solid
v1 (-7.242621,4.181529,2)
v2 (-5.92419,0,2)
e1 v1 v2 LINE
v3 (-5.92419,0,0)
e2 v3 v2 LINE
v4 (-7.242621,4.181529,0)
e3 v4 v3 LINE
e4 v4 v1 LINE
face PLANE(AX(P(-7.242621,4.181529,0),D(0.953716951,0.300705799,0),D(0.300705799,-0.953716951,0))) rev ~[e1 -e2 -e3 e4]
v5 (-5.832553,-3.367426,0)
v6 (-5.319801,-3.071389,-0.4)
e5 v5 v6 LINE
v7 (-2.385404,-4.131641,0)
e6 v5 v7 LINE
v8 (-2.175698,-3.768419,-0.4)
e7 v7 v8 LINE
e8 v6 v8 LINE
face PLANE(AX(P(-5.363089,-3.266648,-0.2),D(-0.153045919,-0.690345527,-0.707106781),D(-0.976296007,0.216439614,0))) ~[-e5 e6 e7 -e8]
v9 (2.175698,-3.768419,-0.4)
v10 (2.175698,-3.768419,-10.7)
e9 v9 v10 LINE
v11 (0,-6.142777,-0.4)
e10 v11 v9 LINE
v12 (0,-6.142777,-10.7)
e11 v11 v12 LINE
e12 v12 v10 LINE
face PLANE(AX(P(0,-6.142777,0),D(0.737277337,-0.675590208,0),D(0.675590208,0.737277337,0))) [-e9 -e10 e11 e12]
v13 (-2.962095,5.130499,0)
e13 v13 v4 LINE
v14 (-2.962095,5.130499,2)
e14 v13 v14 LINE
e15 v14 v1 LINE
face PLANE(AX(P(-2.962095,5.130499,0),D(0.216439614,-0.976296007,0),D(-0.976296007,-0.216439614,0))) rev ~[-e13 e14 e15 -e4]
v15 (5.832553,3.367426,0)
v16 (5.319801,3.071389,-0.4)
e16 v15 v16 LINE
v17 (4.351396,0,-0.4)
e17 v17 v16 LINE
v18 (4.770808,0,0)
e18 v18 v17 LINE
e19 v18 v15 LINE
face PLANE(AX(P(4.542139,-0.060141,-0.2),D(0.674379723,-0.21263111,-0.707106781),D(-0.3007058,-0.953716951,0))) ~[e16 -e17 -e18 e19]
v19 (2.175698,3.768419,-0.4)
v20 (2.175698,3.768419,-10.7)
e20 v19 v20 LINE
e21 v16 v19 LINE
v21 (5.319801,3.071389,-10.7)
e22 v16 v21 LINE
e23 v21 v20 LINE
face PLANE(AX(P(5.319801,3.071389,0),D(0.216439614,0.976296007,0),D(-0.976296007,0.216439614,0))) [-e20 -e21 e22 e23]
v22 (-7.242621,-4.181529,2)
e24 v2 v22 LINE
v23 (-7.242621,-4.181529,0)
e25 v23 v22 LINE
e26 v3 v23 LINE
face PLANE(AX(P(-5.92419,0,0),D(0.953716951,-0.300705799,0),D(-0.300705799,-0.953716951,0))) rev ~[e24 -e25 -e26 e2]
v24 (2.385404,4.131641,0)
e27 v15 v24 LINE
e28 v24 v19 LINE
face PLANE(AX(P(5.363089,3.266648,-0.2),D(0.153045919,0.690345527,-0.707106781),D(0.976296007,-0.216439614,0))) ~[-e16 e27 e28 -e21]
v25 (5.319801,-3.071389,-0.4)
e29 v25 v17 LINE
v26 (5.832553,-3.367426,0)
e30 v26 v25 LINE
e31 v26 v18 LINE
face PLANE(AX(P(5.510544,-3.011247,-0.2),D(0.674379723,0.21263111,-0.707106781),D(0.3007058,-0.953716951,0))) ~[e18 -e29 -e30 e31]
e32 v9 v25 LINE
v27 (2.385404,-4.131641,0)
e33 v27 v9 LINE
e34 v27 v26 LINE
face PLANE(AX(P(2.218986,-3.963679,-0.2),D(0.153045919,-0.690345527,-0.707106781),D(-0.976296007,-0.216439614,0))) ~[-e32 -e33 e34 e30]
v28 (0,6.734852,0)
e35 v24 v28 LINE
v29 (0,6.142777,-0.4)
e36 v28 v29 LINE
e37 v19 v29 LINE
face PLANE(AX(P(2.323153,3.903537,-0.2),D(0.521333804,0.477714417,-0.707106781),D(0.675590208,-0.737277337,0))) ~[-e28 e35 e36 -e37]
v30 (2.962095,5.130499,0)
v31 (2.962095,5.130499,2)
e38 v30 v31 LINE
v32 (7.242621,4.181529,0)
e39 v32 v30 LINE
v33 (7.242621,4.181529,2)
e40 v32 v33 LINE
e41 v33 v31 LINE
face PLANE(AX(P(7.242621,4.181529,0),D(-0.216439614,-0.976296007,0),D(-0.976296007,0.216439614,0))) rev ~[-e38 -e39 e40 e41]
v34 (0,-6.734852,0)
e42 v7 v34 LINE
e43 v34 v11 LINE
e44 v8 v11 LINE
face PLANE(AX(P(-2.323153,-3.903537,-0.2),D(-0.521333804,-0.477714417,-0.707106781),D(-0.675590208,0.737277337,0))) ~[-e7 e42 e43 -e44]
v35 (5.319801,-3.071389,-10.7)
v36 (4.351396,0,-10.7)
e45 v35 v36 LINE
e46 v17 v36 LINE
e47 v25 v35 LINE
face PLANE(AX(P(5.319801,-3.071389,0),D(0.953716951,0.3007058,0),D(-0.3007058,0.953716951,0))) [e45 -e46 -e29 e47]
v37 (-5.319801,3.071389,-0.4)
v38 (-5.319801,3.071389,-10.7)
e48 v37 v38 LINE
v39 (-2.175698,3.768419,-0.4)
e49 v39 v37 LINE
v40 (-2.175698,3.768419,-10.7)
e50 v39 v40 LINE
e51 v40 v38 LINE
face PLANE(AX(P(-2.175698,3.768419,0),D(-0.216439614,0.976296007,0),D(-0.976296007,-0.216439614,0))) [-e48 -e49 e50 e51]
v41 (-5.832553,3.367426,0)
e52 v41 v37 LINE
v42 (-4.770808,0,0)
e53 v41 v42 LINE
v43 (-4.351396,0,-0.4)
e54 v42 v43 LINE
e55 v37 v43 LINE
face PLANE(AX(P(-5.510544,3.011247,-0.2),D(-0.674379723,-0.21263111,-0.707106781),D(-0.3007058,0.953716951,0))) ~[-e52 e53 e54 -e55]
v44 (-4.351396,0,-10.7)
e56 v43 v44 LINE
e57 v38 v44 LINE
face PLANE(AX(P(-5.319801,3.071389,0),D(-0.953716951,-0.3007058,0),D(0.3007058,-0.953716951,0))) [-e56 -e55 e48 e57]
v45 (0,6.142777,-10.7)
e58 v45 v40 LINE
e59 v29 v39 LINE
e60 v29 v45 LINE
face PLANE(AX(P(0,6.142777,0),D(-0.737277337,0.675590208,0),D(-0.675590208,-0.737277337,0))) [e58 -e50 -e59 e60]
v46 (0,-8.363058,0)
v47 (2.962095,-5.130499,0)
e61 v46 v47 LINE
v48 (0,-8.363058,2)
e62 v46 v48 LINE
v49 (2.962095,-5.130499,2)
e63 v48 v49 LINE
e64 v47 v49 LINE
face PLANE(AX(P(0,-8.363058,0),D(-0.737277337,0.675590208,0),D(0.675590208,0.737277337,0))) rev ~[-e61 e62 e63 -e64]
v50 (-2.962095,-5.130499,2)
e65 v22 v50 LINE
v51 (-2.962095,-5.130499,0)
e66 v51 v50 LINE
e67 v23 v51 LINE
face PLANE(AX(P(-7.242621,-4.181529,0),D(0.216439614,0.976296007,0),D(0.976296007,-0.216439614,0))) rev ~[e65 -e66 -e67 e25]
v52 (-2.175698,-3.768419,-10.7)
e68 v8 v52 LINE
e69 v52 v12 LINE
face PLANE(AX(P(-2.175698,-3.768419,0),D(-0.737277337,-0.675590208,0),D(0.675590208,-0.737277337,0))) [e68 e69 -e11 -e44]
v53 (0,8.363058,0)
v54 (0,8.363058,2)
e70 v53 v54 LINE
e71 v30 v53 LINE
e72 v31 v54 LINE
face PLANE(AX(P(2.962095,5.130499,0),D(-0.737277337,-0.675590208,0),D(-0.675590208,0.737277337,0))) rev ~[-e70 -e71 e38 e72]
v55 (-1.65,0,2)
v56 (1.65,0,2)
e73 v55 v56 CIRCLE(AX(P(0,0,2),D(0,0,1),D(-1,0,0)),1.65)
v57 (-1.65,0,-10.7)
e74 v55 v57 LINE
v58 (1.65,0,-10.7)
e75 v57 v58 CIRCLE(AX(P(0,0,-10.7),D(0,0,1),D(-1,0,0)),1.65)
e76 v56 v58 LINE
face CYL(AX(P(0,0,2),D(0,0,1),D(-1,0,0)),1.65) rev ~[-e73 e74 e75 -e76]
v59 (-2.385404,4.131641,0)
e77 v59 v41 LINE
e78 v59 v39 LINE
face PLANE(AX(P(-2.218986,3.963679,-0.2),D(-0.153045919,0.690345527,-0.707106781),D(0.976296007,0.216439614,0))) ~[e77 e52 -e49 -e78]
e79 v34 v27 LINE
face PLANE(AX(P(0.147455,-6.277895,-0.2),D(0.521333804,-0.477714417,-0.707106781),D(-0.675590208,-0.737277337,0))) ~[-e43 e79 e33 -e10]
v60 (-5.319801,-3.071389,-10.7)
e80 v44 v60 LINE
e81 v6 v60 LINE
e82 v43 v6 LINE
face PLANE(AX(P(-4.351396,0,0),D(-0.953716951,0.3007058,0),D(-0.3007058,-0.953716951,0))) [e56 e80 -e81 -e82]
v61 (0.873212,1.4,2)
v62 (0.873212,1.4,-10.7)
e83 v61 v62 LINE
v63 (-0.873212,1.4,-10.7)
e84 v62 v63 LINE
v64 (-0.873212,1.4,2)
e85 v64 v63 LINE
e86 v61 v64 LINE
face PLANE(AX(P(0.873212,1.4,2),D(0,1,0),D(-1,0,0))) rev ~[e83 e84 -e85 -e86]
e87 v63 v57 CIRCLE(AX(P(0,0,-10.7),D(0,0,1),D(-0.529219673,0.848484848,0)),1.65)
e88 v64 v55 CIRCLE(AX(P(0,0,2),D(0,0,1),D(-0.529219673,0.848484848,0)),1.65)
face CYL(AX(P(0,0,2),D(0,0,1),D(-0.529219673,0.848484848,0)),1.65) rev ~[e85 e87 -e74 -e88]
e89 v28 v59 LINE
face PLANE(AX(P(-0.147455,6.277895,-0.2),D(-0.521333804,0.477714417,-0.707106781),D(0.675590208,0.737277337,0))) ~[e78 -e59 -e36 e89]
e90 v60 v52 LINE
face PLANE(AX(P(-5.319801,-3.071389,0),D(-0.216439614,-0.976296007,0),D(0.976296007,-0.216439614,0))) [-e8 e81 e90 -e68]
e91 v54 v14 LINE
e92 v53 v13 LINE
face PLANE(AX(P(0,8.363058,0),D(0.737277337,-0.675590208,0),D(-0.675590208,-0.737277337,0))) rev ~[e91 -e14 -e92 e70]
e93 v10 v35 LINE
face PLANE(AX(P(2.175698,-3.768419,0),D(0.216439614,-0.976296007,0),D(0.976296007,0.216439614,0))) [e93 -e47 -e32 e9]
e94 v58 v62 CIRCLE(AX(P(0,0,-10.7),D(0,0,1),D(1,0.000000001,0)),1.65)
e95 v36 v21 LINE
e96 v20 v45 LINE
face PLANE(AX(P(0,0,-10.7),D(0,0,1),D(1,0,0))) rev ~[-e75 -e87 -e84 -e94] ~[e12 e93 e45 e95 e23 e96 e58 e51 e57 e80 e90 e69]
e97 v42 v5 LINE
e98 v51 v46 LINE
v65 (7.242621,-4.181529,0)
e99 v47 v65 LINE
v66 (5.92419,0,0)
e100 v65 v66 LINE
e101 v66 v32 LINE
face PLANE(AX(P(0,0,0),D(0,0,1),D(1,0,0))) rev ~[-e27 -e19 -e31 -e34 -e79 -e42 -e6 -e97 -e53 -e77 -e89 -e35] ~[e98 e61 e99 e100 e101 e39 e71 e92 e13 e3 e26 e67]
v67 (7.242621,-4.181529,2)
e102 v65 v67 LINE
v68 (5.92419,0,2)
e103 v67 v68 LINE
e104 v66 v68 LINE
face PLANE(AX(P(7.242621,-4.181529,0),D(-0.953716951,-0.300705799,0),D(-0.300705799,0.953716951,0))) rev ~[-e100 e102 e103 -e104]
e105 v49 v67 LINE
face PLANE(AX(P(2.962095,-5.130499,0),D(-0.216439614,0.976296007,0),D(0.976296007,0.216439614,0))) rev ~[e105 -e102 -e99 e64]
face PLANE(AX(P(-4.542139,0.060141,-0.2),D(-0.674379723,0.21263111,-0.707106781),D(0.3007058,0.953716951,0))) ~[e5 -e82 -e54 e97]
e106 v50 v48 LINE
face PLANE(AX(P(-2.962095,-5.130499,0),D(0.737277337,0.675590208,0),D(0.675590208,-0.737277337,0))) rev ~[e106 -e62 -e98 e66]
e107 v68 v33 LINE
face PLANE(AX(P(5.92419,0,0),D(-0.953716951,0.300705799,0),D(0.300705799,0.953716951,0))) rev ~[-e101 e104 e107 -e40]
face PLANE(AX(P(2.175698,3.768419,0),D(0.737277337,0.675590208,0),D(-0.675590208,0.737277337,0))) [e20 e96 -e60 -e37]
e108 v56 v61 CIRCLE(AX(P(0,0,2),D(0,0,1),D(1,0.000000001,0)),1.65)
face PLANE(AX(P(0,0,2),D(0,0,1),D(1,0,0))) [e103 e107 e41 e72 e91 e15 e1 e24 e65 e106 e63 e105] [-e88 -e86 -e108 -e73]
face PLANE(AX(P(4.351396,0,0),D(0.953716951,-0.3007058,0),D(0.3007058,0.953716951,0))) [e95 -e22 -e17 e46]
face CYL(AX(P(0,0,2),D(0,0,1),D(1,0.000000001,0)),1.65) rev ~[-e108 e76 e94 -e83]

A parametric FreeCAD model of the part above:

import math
import FreeCAD as App
import Part
import Sketcher
Q = App.Units.Quantity


def edges_at(feature, points):
    """Names of the edges that pass closest to the given points."""
    edges = feature.Shape.Edges
    near = lambda p: min(range(len(edges)), key=lambda i: edges[i].distToShape(Part.Vertex(*p))[0])
    return sorted({f"Edge{near(p) + 1}" for p in points})

doc = App.newDocument("Part")
body = doc.addObject("PartDesign::Body", "Body")

sketch1 = body.newObject("Sketcher::SketchObject", "Sketch")
sketch1.AttachmentSupport = (doc.getObject("XY_Plane"), [""])
sketch1.MapMode = "FlatFace"
sketch1.addGeometry([
    Part.LineSegment(App.Vector(0, -6.142777, 0), App.Vector(2.175698, -3.768419, 0)),
    Part.LineSegment(App.Vector(2.175698, -3.768419, 0), App.Vector(5.319801, -3.071389, 0)),
    Part.LineSegment(App.Vector(5.319801, -3.071389, 0), App.Vector(4.351396, 0, 0)),
    Part.LineSegment(App.Vector(4.351396, 0, 0), App.Vector(5.319801, 3.071389, 0)),
    Part.LineSegment(App.Vector(5.319801, 3.071389, 0), App.Vector(2.175698, 3.768419, 0)),
    Part.LineSegment(App.Vector(2.175698, 3.768419, 0), App.Vector(0, 6.142777, 0)),
    Part.LineSegment(App.Vector(0, 6.142777, 0), App.Vector(-2.175698, 3.768419, 0)),
    Part.LineSegment(App.Vector(-2.175698, 3.768419, 0), App.Vector(-5.319801, 3.071389, 0)),
    Part.LineSegment(App.Vector(-5.319801, 3.071389, 0), App.Vector(-4.351396, 0, 0)),
    Part.LineSegment(App.Vector(-4.351396, 0, 0), App.Vector(-5.319801, -3.071389, 0)),
    Part.LineSegment(App.Vector(-5.319801, -3.071389, 0), App.Vector(-2.175698, -3.768419, 0)),
    Part.LineSegment(App.Vector(-2.175698, -3.768419, 0), App.Vector(0, -6.142777, 0)),
], False)
sketch1.addConstraint([
    Sketcher.Constraint("Coincident", 0, 2, 1, 1),
    Sketcher.Constraint("Coincident", 1, 2, 2, 1),
    Sketcher.Constraint("Coincident", 2, 2, 3, 1),
    Sketcher.Constraint("Coincident", 3, 2, 4, 1),
    Sketcher.Constraint("Coincident", 4, 2, 5, 1),
    Sketcher.Constraint("Coincident", 5, 2, 6, 1),
    Sketcher.Constraint("Coincident", 6, 2, 7, 1),
    Sketcher.Constraint("Coincident", 7, 2, 8, 1),
    Sketcher.Constraint("Coincident", 8, 2, 9, 1),
    Sketcher.Constraint("Coincident", 9, 2, 10, 1),
    Sketcher.Constraint("Coincident", 10, 2, 11, 1),
    Sketcher.Constraint("Coincident", 11, 2, 0, 1),
    Sketcher.Constraint("Symmetric", 0, 2, 6, 2, -1, 1),
    Sketcher.Constraint("Symmetric", 1, 2, 7, 2, -1, 1),
    Sketcher.Constraint("Symmetric", 2, 2, 8, 2, -1, 1),
    Sketcher.Constraint("Symmetric", 3, 2, 9, 2, -1, 1),
    Sketcher.Constraint("Symmetric", 4, 2, 10, 2, -1, 1),
    Sketcher.Constraint("Symmetric", 5, 2, 11, 2, -1, 1),
    Sketcher.Constraint("Symmetric", 4, 2, 6, 2, -2),
    Sketcher.Constraint("Symmetric", 3, 2, 7, 2, -2),
    Sketcher.Constraint("PointOnObject", 2, 2, -1),
    Sketcher.Constraint("PointOnObject", 5, 2, -2),
    Sketcher.Constraint("Equal", 0, 1),
    Sketcher.Constraint("Equal", 1, 2),
    Sketcher.Constraint("Angle", 0, Q("47.5 deg")),
    Sketcher.Constraint("Angle", 1, Q("12.5 deg")),
    Sketcher.Constraint("Angle", 2, Q("107.5 deg")),
    Sketcher.Constraint("DistanceX", -1, 1, 1, 2, 5.319801),
])
pad1 = body.newObject("PartDesign::Pad", "Pad")
pad1.Profile = sketch1
pad1.Length = 10.7
pad1.Reversed = True

sketch2 = body.newObject("Sketcher::SketchObject", "Sketch001")
sketch2.AttachmentSupport = (doc.getObject("XY_Plane"), [""])
sketch2.MapMode = "FlatFace"
sketch2.addGeometry([
    Part.LineSegment(App.Vector(5.92419, 0, 0), App.Vector(7.242621, 4.181529, 0)),
    Part.LineSegment(App.Vector(7.242621, 4.181529, 0), App.Vector(2.962095, 5.130499, 0)),
    Part.LineSegment(App.Vector(2.962095, 5.130499, 0), App.Vector(0, 8.363058, 0)),
    Part.LineSegment(App.Vector(0, 8.363058, 0), App.Vector(-2.962095, 5.130499, 0)),
    Part.LineSegment(App.Vector(-2.962095, 5.130499, 0), App.Vector(-7.242621, 4.181529, 0)),
    Part.LineSegment(App.Vector(-7.242621, 4.181529, 0), App.Vector(-5.92419, 0, 0)),
    Part.LineSegment(App.Vector(-5.92419, 0, 0), App.Vector(-7.242621, -4.181529, 0)),
    Part.LineSegment(App.Vector(-7.242621, -4.181529, 0), App.Vector(-2.962095, -5.130499, 0)),
    Part.LineSegment(App.Vector(-2.962095, -5.130499, 0), App.Vector(0, -8.363058, 0)),
    Part.LineSegment(App.Vector(0, -8.363058, 0), App.Vector(2.962095, -5.130499, 0)),
    Part.LineSegment(App.Vector(2.962095, -5.130499, 0), App.Vector(7.242621, -4.181529, 0)),
    Part.LineSegment(App.Vector(7.242621, -4.181529, 0), App.Vector(5.92419, 0, 0)),
], False)
sketch2.addConstraint([
    Sketcher.Constraint("Coincident", 0, 2, 1, 1),
    Sketcher.Constraint("Coincident", 1, 2, 2, 1),
    Sketcher.Constraint("Coincident", 2, 2, 3, 1),
    Sketcher.Constraint("Coincident", 3, 2, 4, 1),
    Sketcher.Constraint("Coincident", 4, 2, 5, 1),
    Sketcher.Constraint("Coincident", 5, 2, 6, 1),
    Sketcher.Constraint("Coincident", 6, 2, 7, 1),
    Sketcher.Constraint("Coincident", 7, 2, 8, 1),
    Sketcher.Constraint("Coincident", 8, 2, 9, 1),
    Sketcher.Constraint("Coincident", 9, 2, 10, 1),
    Sketcher.Constraint("Coincident", 10, 2, 11, 1),
    Sketcher.Constraint("Coincident", 11, 2, 0, 1),
    Sketcher.Constraint("Symmetric", 0, 2, 6, 2, -1, 1),
    Sketcher.Constraint("Symmetric", 1, 2, 7, 2, -1, 1),
    Sketcher.Constraint("Symmetric", 2, 2, 8, 2, -1, 1),
    Sketcher.Constraint("Symmetric", 3, 2, 9, 2, -1, 1),
    Sketcher.Constraint("Symmetric", 4, 2, 10, 2, -1, 1),
    Sketcher.Constraint("Symmetric", 5, 2, 11, 2, -1, 1),
    Sketcher.Constraint("Symmetric", 1, 2, 3, 2, -2),
    Sketcher.Constraint("Symmetric", 0, 2, 4, 2, -2),
    Sketcher.Constraint("PointOnObject", 2, 2, -2),
    Sketcher.Constraint("PointOnObject", 5, 2, -1),
    Sketcher.Constraint("Equal", 0, 1),
    Sketcher.Constraint("Equal", 1, 2),
    Sketcher.Constraint("Angle", 0, Q("72.5 deg")),
    Sketcher.Constraint("Angle", 1, Q("167.5 deg")),
    Sketcher.Constraint("Angle", 2, Q("132.5 deg")),
    Sketcher.Constraint("DistanceY", -1, 1, 1, 2, 5.130499),
])
pad2 = body.newObject("PartDesign::Pad", "Pad001")
pad2.Profile = sketch2
pad2.Length = 2

sketch3 = body.newObject("Sketcher::SketchObject", "Sketch002")
sketch3.AttachmentSupport = (doc.getObject("XY_Plane"), [""])
sketch3.MapMode = "FlatFace"
sketch3.AttachmentOffset = App.Placement(App.Vector(0, 0, 2), App.Rotation())
sketch3.addGeometry([
    Part.ArcOfCircle(Part.Circle(App.Vector(0, 0, 0), App.Vector(0, 0, 1), 1.65), math.radians(0), math.radians(58.047254)),
    Part.LineSegment(App.Vector(0.873212, 1.4, 0), App.Vector(-0.873212, 1.4, 0)),
    Part.ArcOfCircle(Part.Circle(App.Vector(0, 0, 0), App.Vector(0, 0, 1), 1.65), math.radians(121.952746), math.radians(180)),
    Part.ArcOfCircle(Part.Circle(App.Vector(0, 0, 0), App.Vector(0, 0, 1), 1.65), math.radians(180), math.radians(360)),
], False)
sketch3.addConstraint([
    Sketcher.Constraint("Coincident", 0, 2, 1, 1),
    Sketcher.Constraint("Coincident", 1, 2, 2, 1),
    Sketcher.Constraint("Tangent", 2, 2, 3, 1),
    Sketcher.Constraint("Tangent", 3, 2, 0, 1),
    Sketcher.Constraint("Horizontal", 1),
    Sketcher.Constraint("Coincident", 0, 3, -1, 1),
    Sketcher.Constraint("Equal", 0, 2),
    Sketcher.Constraint("Equal", 2, 3),
    Sketcher.Constraint("PointOnObject", 2, 2, -1),
    Sketcher.Constraint("PointOnObject", 3, 2, -1),
    Sketcher.Constraint("Radius", 0, 1.65),
    Sketcher.Constraint("DistanceY", -1, 1, 0, 2, 1.4),
])
pocket1 = body.newObject("PartDesign::Pocket", "Pocket")
pocket1.Profile = sketch3
pocket1.Type = "ThroughAll"
doc.recompute()

chamfer = body.newObject("PartDesign::Chamfer", "Chamfer")
chamfer.Base = (pocket1, edges_at(pocket1, [
    (3.748, -3.42, 0),
    (1.088, -4.956, 0),
    (-1.088, -4.956, 0),
    (-3.748, -3.42, 0),
    (-4.836, -1.536, 0),
    (-4.836, 1.536, 0),
    (-3.748, 3.42, 0),
    (-1.088, 4.956, 0),
    (1.088, 4.956, 0),
    (3.748, 3.42, 0),
    (4.836, 1.536, 0),
    (4.836, -1.536, 0),
]))
chamfer.Size = 0.4

doc.recompute()
